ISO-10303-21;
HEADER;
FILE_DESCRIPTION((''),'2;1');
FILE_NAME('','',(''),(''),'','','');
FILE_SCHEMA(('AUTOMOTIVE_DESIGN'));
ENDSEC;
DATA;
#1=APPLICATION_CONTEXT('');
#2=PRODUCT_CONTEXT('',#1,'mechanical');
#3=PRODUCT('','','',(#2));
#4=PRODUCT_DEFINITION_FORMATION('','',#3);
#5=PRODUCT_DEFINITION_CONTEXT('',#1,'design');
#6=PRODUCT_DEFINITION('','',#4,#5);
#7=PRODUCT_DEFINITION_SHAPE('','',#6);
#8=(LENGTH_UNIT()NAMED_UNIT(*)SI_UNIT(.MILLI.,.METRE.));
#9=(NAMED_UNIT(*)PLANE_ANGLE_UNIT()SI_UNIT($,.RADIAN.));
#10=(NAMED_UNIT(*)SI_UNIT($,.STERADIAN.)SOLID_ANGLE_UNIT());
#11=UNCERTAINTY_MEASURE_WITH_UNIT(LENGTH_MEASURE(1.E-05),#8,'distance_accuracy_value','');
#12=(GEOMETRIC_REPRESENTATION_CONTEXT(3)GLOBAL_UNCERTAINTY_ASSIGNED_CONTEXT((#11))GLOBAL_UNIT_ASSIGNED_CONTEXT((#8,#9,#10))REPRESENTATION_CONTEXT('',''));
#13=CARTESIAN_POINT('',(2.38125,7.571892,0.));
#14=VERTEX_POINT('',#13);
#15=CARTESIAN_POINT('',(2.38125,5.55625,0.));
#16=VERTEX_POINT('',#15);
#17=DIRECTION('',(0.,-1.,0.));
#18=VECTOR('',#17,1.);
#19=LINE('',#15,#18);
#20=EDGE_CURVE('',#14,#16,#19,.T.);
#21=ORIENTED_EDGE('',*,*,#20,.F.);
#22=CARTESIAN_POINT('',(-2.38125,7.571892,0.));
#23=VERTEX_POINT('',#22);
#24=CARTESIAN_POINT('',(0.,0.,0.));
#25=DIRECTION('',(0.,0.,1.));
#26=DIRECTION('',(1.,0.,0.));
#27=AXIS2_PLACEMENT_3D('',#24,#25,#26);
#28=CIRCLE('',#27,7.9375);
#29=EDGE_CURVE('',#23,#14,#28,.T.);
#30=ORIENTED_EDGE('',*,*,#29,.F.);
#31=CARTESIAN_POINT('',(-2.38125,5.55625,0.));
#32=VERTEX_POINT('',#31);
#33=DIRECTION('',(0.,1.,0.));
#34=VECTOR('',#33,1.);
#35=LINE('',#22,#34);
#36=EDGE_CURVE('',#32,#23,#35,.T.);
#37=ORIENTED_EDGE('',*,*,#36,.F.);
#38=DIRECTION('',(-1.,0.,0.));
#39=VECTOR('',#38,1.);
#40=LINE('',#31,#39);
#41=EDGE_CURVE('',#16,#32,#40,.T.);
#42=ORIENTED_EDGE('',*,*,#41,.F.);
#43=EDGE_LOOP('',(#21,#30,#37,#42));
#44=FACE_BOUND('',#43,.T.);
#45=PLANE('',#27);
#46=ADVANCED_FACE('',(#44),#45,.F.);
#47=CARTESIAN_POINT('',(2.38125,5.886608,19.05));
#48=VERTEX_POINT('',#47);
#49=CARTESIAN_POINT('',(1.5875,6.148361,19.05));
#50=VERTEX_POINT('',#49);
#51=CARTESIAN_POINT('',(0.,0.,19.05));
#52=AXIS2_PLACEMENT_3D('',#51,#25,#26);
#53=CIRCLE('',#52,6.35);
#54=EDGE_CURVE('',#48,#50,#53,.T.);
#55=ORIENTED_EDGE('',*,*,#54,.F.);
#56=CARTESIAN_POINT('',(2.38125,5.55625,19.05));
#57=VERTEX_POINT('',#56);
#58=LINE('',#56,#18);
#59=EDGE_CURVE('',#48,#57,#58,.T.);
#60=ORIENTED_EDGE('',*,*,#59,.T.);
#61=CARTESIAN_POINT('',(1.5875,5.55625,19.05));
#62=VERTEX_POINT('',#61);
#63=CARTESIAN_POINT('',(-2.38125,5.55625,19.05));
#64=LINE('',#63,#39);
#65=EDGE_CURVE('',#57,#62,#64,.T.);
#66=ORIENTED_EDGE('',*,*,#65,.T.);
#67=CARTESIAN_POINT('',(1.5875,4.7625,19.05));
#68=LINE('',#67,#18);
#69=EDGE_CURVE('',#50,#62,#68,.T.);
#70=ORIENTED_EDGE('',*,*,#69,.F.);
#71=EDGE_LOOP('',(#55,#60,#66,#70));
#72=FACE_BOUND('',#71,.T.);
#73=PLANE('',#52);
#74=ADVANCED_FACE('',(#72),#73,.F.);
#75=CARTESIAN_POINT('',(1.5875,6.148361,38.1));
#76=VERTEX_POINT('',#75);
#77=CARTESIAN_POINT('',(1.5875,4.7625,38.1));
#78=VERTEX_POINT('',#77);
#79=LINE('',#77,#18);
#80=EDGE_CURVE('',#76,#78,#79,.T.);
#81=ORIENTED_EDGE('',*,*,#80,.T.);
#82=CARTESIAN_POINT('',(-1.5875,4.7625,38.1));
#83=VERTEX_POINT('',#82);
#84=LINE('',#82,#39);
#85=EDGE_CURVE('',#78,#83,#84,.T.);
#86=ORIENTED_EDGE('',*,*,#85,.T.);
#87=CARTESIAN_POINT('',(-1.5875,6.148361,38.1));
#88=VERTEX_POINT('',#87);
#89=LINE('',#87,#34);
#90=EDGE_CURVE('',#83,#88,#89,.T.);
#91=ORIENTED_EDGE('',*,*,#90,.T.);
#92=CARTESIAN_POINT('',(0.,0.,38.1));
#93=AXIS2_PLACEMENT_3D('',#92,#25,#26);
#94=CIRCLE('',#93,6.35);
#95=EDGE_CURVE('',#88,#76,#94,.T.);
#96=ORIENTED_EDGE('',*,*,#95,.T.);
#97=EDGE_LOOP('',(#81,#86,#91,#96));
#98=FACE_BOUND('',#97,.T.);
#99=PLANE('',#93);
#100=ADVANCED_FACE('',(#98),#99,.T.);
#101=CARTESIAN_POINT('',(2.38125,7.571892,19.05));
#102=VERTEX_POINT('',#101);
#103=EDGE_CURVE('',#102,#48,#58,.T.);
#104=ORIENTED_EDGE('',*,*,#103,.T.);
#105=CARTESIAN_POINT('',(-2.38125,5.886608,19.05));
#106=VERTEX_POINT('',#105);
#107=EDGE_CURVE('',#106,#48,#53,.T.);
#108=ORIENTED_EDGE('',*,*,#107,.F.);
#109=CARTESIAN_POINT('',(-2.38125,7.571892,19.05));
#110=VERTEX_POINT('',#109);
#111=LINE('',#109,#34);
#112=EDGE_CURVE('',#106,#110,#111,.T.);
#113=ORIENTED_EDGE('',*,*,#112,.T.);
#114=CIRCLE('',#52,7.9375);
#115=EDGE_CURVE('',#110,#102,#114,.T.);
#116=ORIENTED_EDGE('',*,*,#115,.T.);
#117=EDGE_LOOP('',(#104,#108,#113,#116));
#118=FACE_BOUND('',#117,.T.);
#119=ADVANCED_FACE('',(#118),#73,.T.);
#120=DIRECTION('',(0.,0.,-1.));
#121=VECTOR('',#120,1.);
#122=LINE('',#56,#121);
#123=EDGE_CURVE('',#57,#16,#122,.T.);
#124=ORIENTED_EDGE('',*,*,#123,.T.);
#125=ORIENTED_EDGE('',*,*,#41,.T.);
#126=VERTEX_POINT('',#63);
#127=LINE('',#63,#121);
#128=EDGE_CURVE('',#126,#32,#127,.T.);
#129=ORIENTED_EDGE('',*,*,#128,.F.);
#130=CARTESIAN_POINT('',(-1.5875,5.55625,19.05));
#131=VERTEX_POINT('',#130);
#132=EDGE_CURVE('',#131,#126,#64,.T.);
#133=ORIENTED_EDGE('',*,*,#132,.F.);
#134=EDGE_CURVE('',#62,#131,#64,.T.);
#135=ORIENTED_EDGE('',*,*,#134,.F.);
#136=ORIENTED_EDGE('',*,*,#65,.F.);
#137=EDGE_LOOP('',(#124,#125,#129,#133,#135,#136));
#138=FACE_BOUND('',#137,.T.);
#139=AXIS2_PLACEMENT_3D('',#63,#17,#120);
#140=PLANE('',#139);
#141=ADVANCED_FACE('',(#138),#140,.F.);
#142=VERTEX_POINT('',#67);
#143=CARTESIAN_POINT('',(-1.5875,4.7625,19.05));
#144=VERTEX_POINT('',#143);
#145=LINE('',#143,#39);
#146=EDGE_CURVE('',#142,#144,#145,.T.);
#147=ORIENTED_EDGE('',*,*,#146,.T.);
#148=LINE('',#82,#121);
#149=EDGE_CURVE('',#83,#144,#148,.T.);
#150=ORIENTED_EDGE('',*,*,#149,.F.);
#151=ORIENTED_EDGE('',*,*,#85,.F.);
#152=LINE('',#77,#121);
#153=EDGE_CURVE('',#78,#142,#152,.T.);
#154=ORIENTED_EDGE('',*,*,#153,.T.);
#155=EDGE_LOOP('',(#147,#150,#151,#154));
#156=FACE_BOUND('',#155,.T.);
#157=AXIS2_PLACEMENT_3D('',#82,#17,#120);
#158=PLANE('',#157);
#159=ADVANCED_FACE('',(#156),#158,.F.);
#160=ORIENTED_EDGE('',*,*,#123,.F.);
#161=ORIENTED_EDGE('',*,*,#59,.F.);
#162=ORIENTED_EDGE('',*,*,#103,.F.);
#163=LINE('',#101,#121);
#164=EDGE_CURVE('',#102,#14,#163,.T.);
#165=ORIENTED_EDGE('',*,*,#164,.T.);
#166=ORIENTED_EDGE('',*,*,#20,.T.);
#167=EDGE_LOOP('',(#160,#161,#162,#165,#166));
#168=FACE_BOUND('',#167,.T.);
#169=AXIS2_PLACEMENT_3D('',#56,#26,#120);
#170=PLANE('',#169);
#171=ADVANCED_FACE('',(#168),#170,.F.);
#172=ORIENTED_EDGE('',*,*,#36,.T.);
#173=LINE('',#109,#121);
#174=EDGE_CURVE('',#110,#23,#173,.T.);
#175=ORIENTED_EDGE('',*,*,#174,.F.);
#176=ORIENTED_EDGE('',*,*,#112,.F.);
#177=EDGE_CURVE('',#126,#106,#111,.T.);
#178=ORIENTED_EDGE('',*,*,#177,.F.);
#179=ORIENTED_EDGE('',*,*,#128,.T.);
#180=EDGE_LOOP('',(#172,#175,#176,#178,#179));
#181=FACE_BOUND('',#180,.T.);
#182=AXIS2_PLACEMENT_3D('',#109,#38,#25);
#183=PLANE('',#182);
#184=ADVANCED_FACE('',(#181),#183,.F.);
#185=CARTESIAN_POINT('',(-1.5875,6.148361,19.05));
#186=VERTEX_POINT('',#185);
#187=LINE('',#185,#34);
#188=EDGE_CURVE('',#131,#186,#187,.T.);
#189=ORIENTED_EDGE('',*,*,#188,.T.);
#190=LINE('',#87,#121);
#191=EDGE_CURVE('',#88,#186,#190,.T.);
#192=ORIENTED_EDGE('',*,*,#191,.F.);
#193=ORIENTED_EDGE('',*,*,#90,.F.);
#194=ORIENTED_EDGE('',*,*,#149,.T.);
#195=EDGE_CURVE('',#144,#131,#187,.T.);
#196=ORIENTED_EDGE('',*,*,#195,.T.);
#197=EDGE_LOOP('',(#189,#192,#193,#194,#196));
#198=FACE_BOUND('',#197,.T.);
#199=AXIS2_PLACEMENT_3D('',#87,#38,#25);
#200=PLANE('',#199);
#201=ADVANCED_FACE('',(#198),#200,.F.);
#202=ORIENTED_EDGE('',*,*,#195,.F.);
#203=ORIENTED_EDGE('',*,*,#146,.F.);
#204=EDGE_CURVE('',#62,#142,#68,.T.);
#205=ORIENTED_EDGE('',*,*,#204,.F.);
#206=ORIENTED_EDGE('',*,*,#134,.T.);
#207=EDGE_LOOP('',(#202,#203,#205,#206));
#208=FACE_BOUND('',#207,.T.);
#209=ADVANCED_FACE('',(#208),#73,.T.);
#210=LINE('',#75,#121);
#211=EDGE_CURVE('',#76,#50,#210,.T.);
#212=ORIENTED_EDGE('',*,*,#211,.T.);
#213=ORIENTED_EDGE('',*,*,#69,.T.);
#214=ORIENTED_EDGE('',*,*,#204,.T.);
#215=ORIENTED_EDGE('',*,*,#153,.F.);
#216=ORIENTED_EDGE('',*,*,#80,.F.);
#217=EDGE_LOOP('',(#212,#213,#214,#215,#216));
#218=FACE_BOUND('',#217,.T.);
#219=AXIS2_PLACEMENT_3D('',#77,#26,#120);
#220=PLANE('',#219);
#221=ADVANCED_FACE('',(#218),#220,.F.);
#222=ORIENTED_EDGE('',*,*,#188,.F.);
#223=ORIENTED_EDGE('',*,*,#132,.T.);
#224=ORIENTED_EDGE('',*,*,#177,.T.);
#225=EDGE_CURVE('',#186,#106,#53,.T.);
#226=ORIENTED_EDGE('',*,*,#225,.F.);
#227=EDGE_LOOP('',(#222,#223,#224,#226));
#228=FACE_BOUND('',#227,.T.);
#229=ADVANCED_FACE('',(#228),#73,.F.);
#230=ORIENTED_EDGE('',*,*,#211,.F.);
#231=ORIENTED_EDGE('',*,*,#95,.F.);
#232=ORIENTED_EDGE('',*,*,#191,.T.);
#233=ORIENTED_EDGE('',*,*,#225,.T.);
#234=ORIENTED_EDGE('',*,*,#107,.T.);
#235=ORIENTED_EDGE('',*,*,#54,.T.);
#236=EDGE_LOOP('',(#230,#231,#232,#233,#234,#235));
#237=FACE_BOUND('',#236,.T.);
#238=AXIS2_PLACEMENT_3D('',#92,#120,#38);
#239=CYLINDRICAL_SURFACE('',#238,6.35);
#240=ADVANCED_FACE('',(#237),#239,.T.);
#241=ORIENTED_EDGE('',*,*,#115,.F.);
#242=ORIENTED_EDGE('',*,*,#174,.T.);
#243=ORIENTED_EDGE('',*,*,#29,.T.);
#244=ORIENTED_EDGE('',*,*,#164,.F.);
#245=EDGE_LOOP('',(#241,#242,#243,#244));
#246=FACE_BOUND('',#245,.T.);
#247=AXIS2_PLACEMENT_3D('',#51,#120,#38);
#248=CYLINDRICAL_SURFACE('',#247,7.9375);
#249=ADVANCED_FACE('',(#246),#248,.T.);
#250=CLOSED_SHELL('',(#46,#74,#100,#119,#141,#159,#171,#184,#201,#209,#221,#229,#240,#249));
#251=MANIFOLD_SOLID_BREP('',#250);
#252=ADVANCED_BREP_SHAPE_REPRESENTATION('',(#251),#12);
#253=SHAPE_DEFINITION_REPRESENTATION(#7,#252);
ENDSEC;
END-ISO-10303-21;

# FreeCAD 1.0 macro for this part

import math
import FreeCAD as App
import Part
import Sketcher

V = App.Vector
Q = App.Units.Quantity

doc = App.newDocument("Part")
params = doc.addObject("Spreadsheet::Sheet", "Params")
for row, (alias, value) in enumerate([
    ("sketch1_radius", "0.3125 in"),
    ("sketch1_width", "0.1875 in"),
    ("pad1_length", "0.75 in"),
    ("sketch2_radius", "0.25 in"),
    ("sketch2_width", "0.125 in"),
    ("pad2_length", "0.75 in"),
], start=1):
    params.set(f"A{row}", alias)
    params.set(f"B{row}", "=" + value)
    params.setAlias(f"B{row}", alias)

body = doc.addObject("PartDesign::Body", "Body")

sketch1 = body.newObject("Sketcher::SketchObject", "Sketch")
sketch1.AttachmentSupport = (doc.getObject("XY_Plane"), [""])
sketch1.MapMode = "FlatFace"
sketch1.addGeometry(Part.LineSegment(V(-2.4, 5.6, 0), V(-2.4, 7.6, 0)), False)
sketch1.addGeometry(Part.ArcOfCircle(Part.Circle(V(0, 0, 0), V(0, 0, 1), 7.9), math.radians(107), math.radians(433)), False)
sketch1.addGeometry(Part.LineSegment(V(2.4, 7.6, 0), V(2.4, 5.6, 0)), False)
sketch1.addGeometry(Part.LineSegment(V(2.4, 5.6, 0), V(-2.4, 5.6, 0)), False)
sketch1.addConstraint(Sketcher.Constraint("Coincident", 0, 2, 1, 1))
sketch1.addConstraint(Sketcher.Constraint("Coincident", 1, 2, 2, 1))
sketch1.addConstraint(Sketcher.Constraint("Coincident", 2, 2, 3, 1))
sketch1.addConstraint(Sketcher.Constraint("Coincident", 3, 2, 0, 1))
sketch1.addConstraint(Sketcher.Constraint("Vertical", 0))
sketch1.addConstraint(Sketcher.Constraint("Vertical", 2))
sketch1.addConstraint(Sketcher.Constraint("Horizontal", 3))
sketch1.addConstraint(Sketcher.Constraint("Coincident", 1, 3, -1, 1))
sketch1.addConstraint(Sketcher.Constraint("Horizontal", 0, 2, 1, 2))
sketch1.addConstraint(Sketcher.Constraint("Radius", 1, Q("0.3125 in")))
sketch1.addConstraint(Sketcher.Constraint("DistanceX", 3, 2, 3, 1, Q("0.1875 in")))
sketch1.addConstraint(Sketcher.Constraint("DistanceY", -1, 1, 2, 2, Q("0.21875 in")))
sketch1.setExpression("Constraints[9]", "Params.sketch1_radius")
sketch1.setExpression("Constraints[10]", "Params.sketch1_width")
pad1 = body.newObject("PartDesign::Pad", "Pad")
pad1.Profile = sketch1
pad1.setExpression("Length", "Params.pad1_length")

sketch2 = body.newObject("Sketcher::SketchObject", "Sketch001")
sketch2.AttachmentSupport = (doc.getObject("XY_Plane"), [""])
sketch2.MapMode = "FlatFace"
sketch2.AttachmentOffset = App.Placement(V(0, 0, 0.75 * 25.4), App.Rotation())
sketch2.addGeometry(Part.LineSegment(V(-1.6, 4.8, 0), V(-1.6, 6.1, 0)), False)
sketch2.addGeometry(Part.ArcOfCircle(Part.Circle(V(0, 0, 0), V(0, 0, 1), 6.3), math.radians(104), math.radians(436)), False)
sketch2.addGeometry(Part.LineSegment(V(1.6, 6.1, 0), V(1.6, 4.8, 0)), False)
sketch2.addGeometry(Part.LineSegment(V(1.6, 4.8, 0), V(-1.6, 4.8, 0)), False)
sketch2.addConstraint(Sketcher.Constraint("Coincident", 0, 2, 1, 1))
sketch2.addConstraint(Sketcher.Constraint("Coincident", 1, 2, 2, 1))
sketch2.addConstraint(Sketcher.Constraint("Coincident", 2, 2, 3, 1))
sketch2.addConstraint(Sketcher.Constraint("Coincident", 3, 2, 0, 1))
sketch2.addConstraint(Sketcher.Constraint("Vertical", 0))
sketch2.addConstraint(Sketcher.Constraint("Vertical", 2))
sketch2.addConstraint(Sketcher.Constraint("Horizontal", 3))
sketch2.addConstraint(Sketcher.Constraint("Coincident", 1, 3, -1, 1))
sketch2.addConstraint(Sketcher.Constraint("Horizontal", 0, 2, 1, 2))
sketch2.addConstraint(Sketcher.Constraint("Radius", 1, Q("0.25 in")))
sketch2.addConstraint(Sketcher.Constraint("DistanceX", 3, 2, 3, 1, Q("0.125 in")))
sketch2.addConstraint(Sketcher.Constraint("DistanceY", -1, 1, 2, 2, Q("0.1875 in")))
sketch2.setExpression("Constraints[9]", "Params.sketch2_radius")
sketch2.setExpression("Constraints[10]", "Params.sketch2_width")
pad2 = body.newObject("PartDesign::Pad", "Pad001")
pad2.Profile = sketch2
pad2.setExpression("Length", "Params.pad2_length")

doc.recompute()
